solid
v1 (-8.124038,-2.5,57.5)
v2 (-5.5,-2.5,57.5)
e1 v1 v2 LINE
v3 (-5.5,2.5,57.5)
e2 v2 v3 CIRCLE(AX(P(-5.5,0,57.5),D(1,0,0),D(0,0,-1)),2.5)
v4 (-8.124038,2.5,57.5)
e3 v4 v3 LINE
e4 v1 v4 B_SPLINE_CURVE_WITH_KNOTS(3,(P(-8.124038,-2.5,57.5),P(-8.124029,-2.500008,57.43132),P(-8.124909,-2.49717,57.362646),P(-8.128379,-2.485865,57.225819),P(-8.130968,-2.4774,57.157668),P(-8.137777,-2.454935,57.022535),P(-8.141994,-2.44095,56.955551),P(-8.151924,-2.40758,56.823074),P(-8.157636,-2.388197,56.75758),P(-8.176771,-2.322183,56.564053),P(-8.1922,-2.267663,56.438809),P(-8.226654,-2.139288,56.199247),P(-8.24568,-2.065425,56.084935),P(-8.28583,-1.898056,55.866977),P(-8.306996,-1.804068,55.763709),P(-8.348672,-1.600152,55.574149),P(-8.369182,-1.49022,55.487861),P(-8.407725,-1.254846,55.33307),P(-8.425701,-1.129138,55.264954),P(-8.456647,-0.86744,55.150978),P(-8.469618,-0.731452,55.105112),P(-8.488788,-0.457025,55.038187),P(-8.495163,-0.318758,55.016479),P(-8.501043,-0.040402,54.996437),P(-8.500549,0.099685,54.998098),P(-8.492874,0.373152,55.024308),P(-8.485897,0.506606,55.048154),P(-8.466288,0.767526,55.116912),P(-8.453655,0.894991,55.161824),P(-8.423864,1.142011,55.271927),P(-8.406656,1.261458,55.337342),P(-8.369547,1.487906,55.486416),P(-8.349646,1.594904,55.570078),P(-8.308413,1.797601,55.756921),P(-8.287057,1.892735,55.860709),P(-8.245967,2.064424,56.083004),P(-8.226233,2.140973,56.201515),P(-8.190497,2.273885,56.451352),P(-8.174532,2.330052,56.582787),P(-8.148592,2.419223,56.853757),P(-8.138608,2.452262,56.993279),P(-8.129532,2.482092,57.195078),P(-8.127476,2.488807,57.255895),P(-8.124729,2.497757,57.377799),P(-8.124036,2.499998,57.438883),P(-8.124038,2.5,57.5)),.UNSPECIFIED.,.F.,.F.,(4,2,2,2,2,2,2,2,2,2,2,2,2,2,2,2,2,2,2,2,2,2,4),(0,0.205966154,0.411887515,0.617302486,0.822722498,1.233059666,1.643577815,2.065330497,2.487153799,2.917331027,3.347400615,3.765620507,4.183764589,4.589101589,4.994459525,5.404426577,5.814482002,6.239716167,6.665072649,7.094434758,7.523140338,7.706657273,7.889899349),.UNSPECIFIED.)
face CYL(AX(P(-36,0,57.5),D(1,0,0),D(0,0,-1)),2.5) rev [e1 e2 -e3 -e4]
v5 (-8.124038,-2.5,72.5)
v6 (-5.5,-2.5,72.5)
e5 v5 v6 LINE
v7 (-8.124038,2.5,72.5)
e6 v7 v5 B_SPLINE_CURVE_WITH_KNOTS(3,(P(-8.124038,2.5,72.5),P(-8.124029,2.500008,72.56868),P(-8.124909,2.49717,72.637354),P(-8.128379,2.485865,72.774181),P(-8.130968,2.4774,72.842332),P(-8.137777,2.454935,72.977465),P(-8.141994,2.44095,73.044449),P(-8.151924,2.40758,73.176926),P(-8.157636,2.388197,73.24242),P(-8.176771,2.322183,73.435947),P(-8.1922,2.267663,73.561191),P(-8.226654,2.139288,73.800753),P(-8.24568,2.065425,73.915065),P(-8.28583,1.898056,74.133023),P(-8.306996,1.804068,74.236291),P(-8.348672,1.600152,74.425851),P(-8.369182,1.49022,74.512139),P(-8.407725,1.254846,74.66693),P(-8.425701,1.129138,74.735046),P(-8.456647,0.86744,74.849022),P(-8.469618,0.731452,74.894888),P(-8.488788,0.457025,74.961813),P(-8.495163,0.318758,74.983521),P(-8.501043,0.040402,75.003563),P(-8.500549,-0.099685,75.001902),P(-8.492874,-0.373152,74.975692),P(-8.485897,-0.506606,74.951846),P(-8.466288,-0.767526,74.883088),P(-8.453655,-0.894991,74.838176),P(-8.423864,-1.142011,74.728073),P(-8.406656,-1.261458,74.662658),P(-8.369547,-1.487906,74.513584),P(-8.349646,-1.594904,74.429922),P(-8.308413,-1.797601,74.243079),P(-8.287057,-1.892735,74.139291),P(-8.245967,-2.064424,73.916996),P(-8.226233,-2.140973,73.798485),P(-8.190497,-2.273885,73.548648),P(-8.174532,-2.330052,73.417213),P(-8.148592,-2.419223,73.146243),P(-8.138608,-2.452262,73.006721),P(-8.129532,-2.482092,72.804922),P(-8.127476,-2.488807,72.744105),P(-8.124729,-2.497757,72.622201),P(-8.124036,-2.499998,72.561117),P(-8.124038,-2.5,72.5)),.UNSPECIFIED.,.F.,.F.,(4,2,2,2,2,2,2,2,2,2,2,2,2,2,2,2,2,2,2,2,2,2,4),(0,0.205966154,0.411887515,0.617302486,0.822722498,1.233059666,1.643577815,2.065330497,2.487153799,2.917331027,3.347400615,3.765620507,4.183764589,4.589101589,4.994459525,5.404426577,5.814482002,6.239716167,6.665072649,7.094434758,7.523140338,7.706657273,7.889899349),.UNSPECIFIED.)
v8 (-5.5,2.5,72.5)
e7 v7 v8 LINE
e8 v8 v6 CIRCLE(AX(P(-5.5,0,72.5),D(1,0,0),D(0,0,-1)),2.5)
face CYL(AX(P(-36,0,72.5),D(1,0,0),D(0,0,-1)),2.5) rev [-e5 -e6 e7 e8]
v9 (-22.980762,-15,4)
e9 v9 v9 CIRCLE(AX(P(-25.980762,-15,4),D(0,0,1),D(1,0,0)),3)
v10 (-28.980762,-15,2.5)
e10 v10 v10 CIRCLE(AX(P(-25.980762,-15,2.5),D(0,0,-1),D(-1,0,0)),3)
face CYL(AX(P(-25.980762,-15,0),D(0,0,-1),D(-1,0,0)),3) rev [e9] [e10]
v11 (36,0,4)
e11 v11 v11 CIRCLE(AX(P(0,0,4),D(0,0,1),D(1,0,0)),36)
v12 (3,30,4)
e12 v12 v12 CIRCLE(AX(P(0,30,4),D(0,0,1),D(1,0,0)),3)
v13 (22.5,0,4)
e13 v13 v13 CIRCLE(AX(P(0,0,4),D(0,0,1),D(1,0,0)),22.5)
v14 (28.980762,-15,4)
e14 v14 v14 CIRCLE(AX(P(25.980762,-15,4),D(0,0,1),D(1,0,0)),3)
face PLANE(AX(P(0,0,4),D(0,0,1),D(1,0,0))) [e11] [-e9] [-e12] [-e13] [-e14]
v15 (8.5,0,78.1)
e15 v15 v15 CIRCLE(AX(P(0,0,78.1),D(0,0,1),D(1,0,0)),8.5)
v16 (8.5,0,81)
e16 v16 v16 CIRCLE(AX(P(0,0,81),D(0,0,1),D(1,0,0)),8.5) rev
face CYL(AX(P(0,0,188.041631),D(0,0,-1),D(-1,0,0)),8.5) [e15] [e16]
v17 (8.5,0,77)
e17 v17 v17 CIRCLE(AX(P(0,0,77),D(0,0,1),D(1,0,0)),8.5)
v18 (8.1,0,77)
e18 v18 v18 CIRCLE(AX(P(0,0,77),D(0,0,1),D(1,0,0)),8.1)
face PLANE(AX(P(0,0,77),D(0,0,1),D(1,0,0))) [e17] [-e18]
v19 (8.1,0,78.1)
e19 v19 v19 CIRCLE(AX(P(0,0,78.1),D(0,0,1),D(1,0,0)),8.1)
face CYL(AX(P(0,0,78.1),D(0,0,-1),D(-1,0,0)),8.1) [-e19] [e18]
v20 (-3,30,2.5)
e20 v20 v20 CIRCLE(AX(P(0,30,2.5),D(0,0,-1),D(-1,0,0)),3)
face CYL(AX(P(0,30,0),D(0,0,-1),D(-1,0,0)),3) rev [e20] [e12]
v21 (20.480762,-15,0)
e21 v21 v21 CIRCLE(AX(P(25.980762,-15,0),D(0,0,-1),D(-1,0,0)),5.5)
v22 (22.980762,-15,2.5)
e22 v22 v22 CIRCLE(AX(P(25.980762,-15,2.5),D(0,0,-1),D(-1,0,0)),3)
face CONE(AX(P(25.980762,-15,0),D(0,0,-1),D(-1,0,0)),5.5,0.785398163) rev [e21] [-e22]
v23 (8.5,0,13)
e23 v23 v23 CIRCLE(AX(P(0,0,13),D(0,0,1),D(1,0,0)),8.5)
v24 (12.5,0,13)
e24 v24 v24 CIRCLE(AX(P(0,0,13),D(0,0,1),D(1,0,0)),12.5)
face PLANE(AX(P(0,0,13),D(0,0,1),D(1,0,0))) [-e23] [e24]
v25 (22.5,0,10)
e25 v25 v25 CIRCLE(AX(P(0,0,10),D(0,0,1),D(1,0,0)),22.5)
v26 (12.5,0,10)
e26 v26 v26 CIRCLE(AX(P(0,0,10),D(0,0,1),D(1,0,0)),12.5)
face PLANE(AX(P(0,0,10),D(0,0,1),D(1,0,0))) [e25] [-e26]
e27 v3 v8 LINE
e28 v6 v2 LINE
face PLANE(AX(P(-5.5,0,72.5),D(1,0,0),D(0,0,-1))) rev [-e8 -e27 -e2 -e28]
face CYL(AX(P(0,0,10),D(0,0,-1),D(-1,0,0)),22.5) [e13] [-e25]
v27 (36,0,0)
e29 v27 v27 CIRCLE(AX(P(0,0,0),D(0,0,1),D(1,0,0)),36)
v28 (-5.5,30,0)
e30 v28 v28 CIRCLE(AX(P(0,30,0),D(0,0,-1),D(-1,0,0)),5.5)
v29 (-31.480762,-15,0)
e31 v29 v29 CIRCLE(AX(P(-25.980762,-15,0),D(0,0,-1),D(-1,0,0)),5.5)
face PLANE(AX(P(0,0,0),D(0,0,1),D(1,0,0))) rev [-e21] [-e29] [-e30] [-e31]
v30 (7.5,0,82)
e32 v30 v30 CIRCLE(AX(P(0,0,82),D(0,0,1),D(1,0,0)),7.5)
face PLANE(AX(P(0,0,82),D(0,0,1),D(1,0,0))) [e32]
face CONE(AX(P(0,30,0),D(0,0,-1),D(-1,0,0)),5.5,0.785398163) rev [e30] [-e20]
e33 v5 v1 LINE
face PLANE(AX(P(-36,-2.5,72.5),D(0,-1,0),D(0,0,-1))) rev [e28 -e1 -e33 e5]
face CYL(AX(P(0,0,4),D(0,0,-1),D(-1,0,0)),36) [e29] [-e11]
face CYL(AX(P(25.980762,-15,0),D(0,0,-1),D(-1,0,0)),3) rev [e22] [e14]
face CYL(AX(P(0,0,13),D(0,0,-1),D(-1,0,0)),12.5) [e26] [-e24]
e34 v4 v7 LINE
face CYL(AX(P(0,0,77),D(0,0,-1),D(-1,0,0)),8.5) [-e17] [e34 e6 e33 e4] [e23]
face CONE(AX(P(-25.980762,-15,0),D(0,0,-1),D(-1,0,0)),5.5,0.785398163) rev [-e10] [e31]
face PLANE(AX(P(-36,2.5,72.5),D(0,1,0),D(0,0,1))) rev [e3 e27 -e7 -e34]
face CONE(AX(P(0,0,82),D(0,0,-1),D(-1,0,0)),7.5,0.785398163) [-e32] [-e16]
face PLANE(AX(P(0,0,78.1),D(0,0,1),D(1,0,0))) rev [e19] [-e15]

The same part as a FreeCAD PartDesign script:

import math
import FreeCAD as App
import Part
import Sketcher

V = App.Vector
Q = App.Units.Quantity


def edges_at(feature, points):
    """Names of the edges that pass closest to the given points."""
    edges = feature.Shape.Edges
    near = lambda p: min(range(len(edges)), key=lambda i: edges[i].distToShape(Part.Vertex(*p))[0])
    return sorted({f"Edge{near(p) + 1}" for p in points})


def add_polygon(sketch, points):
    """Adds a closed chain of lines whose ends are joined by coincident constraints."""
    first, n = sketch.GeometryCount, len(points)
    for a, b in zip(points, points[1:] + points[:1]):
        sketch.addGeometry(Part.LineSegment(App.Vector(*a, 0), App.Vector(*b, 0)), False)
    for i in range(n):
        sketch.addConstraint(Sketcher.Constraint("Coincident", first + i, 2, first + (i + 1) % n, 1))

doc = App.newDocument("Part")
body = doc.addObject("PartDesign::Body", "Body")

sketch1 = doc.addObject("Sketcher::SketchObject", "Sketch")
body.addObject(sketch1)
sketch1.AttachmentSupport = (doc.XY_Plane, [""])
sketch1.MapMode = "FlatFace"
sketch1.addGeometry(Part.Circle(V(0, 0, 0), V(0, 0, 1), 36), False)
sketch1.addConstraint([
    Sketcher.Constraint("Coincident", 0, 3, -1, 1),
    Sketcher.Constraint("Diameter", 0, 72.0),
])
pad1 = doc.addObject("PartDesign::Pad", "Pad")
body.addObject(pad1)
pad1.Profile = sketch1
pad1.Length = 4

sketch2 = doc.addObject("Sketcher::SketchObject", "Sketch001")
body.addObject(sketch2)
sketch2.AttachmentSupport = (doc.XY_Plane, [""])
sketch2.MapMode = "FlatFace"
sketch2.AttachmentOffset = App.Placement(V(0, 0, 4), App.Rotation())
sketch2.addGeometry(Part.Circle(V(0, 0, 0), V(0, 0, 1), 22.5), False)
sketch2.addConstraint([
    Sketcher.Constraint("Coincident", 0, 3, -1, 1),
    Sketcher.Constraint("Diameter", 0, 45.0),
])
pad2 = doc.addObject("PartDesign::Pad", "Pad001")
body.addObject(pad2)
pad2.Profile = sketch2
pad2.Length = 6

sketch3 = doc.addObject("Sketcher::SketchObject", "Sketch002")
body.addObject(sketch3)
sketch3.AttachmentSupport = (doc.XY_Plane, [""])
sketch3.MapMode = "FlatFace"
sketch3.AttachmentOffset = App.Placement(V(0, 0, 10), App.Rotation())
sketch3.addGeometry(Part.Circle(V(0, 0, 0), V(0, 0, 1), 12.5), False)
sketch3.addConstraint([
    Sketcher.Constraint("Coincident", 0, 3, -1, 1),
    Sketcher.Constraint("Diameter", 0, 25.0),
])
pad3 = doc.addObject("PartDesign::Pad", "Pad002")
body.addObject(pad3)
pad3.Profile = sketch3
pad3.Length = 3

sketch4 = doc.addObject("Sketcher::SketchObject", "Sketch003")
body.addObject(sketch4)
sketch4.AttachmentSupport = (doc.XY_Plane, [""])
sketch4.MapMode = "FlatFace"
sketch4.AttachmentOffset = App.Placement(V(0, 0, 13), App.Rotation())
sketch4.addGeometry(Part.Circle(V(0, 0, 0), V(0, 0, 1), 8.5), False)
sketch4.addConstraint([
    Sketcher.Constraint("Coincident", 0, 3, -1, 1),
    Sketcher.Constraint("Diameter", 0, 17.0),
])
pad4 = doc.addObject("PartDesign::Pad", "Pad003")
body.addObject(pad4)
pad4.Profile = sketch4
pad4.Length = 64

sketch5 = doc.addObject("Sketcher::SketchObject", "Sketch004")
body.addObject(sketch5)
sketch5.AttachmentSupport = (doc.XY_Plane, [""])
sketch5.MapMode = "FlatFace"
sketch5.AttachmentOffset = App.Placement(V(0, 0, 77), App.Rotation())
sketch5.addGeometry(Part.Circle(V(0, 0, 0), V(0, 0, 1), 8.1), False)
sketch5.addConstraint([
    Sketcher.Constraint("Coincident", 0, 3, -1, 1),
    Sketcher.Constraint("Diameter", 0, 16.2),
])
pad5 = doc.addObject("PartDesign::Pad", "Pad004")
body.addObject(pad5)
pad5.Profile = sketch5
pad5.Length = 1.1

sketch6 = doc.addObject("Sketcher::SketchObject", "Sketch005")
body.addObject(sketch6)
sketch6.AttachmentSupport = (doc.XY_Plane, [""])
sketch6.MapMode = "FlatFace"
sketch6.AttachmentOffset = App.Placement(V(0, 0, 78.1), App.Rotation())
sketch6.addGeometry(Part.Circle(V(0, 0, 0), V(0, 0, 1), 8.5), False)
sketch6.addConstraint([
    Sketcher.Constraint("Coincident", 0, 3, -1, 1),
    Sketcher.Constraint("Diameter", 0, 17.0),
])
pad6 = doc.addObject("PartDesign::Pad", "Pad005")
body.addObject(pad6)
pad6.Profile = sketch6
pad6.Length = 3.9
doc.recompute()

chamfer = doc.addObject("PartDesign::Chamfer", "Chamfer")
body.addObject(chamfer)
chamfer.Base = (pad6, edges_at(pad6, [(-8.5, 0, 82)]))
chamfer.Size = 1

sketch7 = doc.addObject("Sketcher::SketchObject", "Sketch006")
body.addObject(sketch7)
sketch7.AttachmentSupport = (doc.YZ_Plane, [""])
sketch7.MapMode = "FlatFace"
sketch7.AttachmentOffset = App.Placement(V(0, 0, -25.980762), App.Rotation())
add_polygon(sketch7, [(-15, 4), (-15, 0), (-9.5, 0), (-12, 2.5), (-12, 4)])
sketch7.addGeometry(Part.LineSegment(V(-15, 0, 0), V(-15, 4, 0)), True)
sketch7.addConstraint([
    Sketcher.Constraint("Vertical", 0),
    Sketcher.Constraint("Horizontal", 1),
    Sketcher.Constraint("Vertical", 3),
    Sketcher.Constraint("Horizontal", 4),
    Sketcher.Constraint("Vertical", 5),
    Sketcher.Constraint("Coincident", 5, 1, 0, 2),
    Sketcher.Constraint("PointOnObject", 0, 2, -1),
    Sketcher.Constraint("Horizontal", 3, 2, 5, 2),
    Sketcher.Constraint("DistanceX", 4, 2, 4, 1, 3.0),
    Sketcher.Constraint("DistanceY", 0, 2, 0, 1, 4.0),
    Sketcher.Constraint("Angle", 2, Q("135 deg")),
    Sketcher.Constraint("DistanceX", 1, 1, 1, 2, 5.5),
    Sketcher.Constraint("DistanceX", 0, 2, -1, 1, 15.0),
])
groove = doc.addObject("PartDesign::Groove", "Groove")
body.addObject(groove)
groove.Profile = sketch7
groove.ReferenceAxis = (sketch7, ["Axis0"])
groove.Angle = 360
doc.recompute()

datumline = doc.addObject("PartDesign::Line", "DatumLine")
body.addObject(datumline)
datumline.Placement = App.Placement(V(0, 0, 0), App.Rotation(V(0, 0, 1), V(0.5, 0.866025404, 0)))
linearpattern = doc.addObject("PartDesign::LinearPattern", "LinearPattern")
body.addObject(linearpattern)
linearpattern.Originals = [groove]
linearpattern.Direction = (datumline, [""])
linearpattern.Mode = "offset"
linearpattern.Offset = 51.961524
linearpattern.Occurrences = 2
body.Tip = linearpattern
doc.recompute()

linearpattern2 = doc.addObject("PartDesign::LinearPattern", "LinearPattern001")
body.addObject(linearpattern2)
linearpattern2.Originals = [groove]
linearpattern2.Direction = (doc.X_Axis, [""])
linearpattern2.Mode = "offset"
linearpattern2.Offset = 51.961524
linearpattern2.Occurrences = 2
body.Tip = linearpattern2

sketch8 = doc.addObject("Sketcher::SketchObject", "Sketch007")
body.addObject(sketch8)
sketch8.AttachmentSupport = (doc.YZ_Plane, [""])
sketch8.MapMode = "FlatFace"
sketch8.AttachmentOffset = App.Placement(V(0, 0, -5.5), App.Rotation())
sketch8.addGeometry([
    Part.LineSegment(V(2.5, 57.5, 0), V(2.5, 72.5, 0)),
    Part.ArcOfCircle(Part.Circle(V(0, 72.5, 0), V(0, 0, 1), 2.5), math.radians(0), math.radians(180)),
    Part.LineSegment(V(-2.5, 72.5, 0), V(-2.5, 57.5, 0)),
    Part.ArcOfCircle(Part.Circle(V(0, 57.5, 0), V(0, 0, 1), 2.5), math.radians(180), math.radians(360)),
], False)
sketch8.addConstraint([
    Sketcher.Constraint("Tangent", 0, 2, 1, 1),
    Sketcher.Constraint("Tangent", 1, 2, 2, 1),
    Sketcher.Constraint("Tangent", 2, 2, 3, 1),
    Sketcher.Constraint("Tangent", 3, 2, 0, 1),
    Sketcher.Constraint("Vertical", 0),
    Sketcher.Constraint("Vertical", 2),
    Sketcher.Constraint("PointOnObject", 1, 3, -2),
    Sketcher.Constraint("Radius", 1, 2.5),
    Sketcher.Constraint("DistanceY", 0, 1, 0, 2, 15.0),
    Sketcher.Constraint("DistanceY", -1, 1, 1, 3, 72.5),
])
pocket1 = doc.addObject("PartDesign::Pocket", "Pocket")
body.addObject(pocket1)
pocket1.Profile = sketch8
pocket1.Type = "ThroughAll"

doc.recompute()
